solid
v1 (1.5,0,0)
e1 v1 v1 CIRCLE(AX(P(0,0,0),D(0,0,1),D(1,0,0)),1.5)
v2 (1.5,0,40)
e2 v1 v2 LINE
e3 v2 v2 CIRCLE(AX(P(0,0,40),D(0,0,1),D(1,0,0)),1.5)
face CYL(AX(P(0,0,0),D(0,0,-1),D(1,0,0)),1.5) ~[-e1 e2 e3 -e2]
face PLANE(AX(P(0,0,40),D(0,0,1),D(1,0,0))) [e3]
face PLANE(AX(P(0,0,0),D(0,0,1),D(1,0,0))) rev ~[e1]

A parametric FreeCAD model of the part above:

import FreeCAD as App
import Part
import Sketcher

V = App.Vector

doc = App.newDocument("Part")
params = doc.addObject("Spreadsheet::Sheet", "Params")
for row, (alias, value) in enumerate([
    ("sketch1_diameter", "3 mm"),
    ("pad1_length", "40 mm"),
], start=1):
    params.set(f"A{row}", alias)
    params.set(f"B{row}", "=" + value)
    params.setAlias(f"B{row}", alias)

body = doc.addObject("PartDesign::Body", "Body")

# Sketch on XY plane
sketch1 = doc.addObject("Sketcher::SketchObject", "Sketch")
body.addObject(sketch1)
sketch1.AttachmentSupport = (doc.XY_Plane, [""])
sketch1.MapMode = "FlatFace"
sketch1.addGeometry(Part.Circle(V(0, 0, 0), V(0, 0, 1), 1.5), False)
sketch1.addConstraint(Sketcher.Constraint("Coincident", 0, 3, -1, 1))
sketch1.addConstraint(Sketcher.Constraint("Diameter", 0, 3.0))
sketch1.setExpression("Constraints[1]", "Params.sketch1_diameter")
pad1 = doc.addObject("PartDesign::Pad", "Pad")
body.addObject(pad1)
pad1.Profile = sketch1
pad1.setExpression("Length", "Params.pad1_length")

doc.recompute()
